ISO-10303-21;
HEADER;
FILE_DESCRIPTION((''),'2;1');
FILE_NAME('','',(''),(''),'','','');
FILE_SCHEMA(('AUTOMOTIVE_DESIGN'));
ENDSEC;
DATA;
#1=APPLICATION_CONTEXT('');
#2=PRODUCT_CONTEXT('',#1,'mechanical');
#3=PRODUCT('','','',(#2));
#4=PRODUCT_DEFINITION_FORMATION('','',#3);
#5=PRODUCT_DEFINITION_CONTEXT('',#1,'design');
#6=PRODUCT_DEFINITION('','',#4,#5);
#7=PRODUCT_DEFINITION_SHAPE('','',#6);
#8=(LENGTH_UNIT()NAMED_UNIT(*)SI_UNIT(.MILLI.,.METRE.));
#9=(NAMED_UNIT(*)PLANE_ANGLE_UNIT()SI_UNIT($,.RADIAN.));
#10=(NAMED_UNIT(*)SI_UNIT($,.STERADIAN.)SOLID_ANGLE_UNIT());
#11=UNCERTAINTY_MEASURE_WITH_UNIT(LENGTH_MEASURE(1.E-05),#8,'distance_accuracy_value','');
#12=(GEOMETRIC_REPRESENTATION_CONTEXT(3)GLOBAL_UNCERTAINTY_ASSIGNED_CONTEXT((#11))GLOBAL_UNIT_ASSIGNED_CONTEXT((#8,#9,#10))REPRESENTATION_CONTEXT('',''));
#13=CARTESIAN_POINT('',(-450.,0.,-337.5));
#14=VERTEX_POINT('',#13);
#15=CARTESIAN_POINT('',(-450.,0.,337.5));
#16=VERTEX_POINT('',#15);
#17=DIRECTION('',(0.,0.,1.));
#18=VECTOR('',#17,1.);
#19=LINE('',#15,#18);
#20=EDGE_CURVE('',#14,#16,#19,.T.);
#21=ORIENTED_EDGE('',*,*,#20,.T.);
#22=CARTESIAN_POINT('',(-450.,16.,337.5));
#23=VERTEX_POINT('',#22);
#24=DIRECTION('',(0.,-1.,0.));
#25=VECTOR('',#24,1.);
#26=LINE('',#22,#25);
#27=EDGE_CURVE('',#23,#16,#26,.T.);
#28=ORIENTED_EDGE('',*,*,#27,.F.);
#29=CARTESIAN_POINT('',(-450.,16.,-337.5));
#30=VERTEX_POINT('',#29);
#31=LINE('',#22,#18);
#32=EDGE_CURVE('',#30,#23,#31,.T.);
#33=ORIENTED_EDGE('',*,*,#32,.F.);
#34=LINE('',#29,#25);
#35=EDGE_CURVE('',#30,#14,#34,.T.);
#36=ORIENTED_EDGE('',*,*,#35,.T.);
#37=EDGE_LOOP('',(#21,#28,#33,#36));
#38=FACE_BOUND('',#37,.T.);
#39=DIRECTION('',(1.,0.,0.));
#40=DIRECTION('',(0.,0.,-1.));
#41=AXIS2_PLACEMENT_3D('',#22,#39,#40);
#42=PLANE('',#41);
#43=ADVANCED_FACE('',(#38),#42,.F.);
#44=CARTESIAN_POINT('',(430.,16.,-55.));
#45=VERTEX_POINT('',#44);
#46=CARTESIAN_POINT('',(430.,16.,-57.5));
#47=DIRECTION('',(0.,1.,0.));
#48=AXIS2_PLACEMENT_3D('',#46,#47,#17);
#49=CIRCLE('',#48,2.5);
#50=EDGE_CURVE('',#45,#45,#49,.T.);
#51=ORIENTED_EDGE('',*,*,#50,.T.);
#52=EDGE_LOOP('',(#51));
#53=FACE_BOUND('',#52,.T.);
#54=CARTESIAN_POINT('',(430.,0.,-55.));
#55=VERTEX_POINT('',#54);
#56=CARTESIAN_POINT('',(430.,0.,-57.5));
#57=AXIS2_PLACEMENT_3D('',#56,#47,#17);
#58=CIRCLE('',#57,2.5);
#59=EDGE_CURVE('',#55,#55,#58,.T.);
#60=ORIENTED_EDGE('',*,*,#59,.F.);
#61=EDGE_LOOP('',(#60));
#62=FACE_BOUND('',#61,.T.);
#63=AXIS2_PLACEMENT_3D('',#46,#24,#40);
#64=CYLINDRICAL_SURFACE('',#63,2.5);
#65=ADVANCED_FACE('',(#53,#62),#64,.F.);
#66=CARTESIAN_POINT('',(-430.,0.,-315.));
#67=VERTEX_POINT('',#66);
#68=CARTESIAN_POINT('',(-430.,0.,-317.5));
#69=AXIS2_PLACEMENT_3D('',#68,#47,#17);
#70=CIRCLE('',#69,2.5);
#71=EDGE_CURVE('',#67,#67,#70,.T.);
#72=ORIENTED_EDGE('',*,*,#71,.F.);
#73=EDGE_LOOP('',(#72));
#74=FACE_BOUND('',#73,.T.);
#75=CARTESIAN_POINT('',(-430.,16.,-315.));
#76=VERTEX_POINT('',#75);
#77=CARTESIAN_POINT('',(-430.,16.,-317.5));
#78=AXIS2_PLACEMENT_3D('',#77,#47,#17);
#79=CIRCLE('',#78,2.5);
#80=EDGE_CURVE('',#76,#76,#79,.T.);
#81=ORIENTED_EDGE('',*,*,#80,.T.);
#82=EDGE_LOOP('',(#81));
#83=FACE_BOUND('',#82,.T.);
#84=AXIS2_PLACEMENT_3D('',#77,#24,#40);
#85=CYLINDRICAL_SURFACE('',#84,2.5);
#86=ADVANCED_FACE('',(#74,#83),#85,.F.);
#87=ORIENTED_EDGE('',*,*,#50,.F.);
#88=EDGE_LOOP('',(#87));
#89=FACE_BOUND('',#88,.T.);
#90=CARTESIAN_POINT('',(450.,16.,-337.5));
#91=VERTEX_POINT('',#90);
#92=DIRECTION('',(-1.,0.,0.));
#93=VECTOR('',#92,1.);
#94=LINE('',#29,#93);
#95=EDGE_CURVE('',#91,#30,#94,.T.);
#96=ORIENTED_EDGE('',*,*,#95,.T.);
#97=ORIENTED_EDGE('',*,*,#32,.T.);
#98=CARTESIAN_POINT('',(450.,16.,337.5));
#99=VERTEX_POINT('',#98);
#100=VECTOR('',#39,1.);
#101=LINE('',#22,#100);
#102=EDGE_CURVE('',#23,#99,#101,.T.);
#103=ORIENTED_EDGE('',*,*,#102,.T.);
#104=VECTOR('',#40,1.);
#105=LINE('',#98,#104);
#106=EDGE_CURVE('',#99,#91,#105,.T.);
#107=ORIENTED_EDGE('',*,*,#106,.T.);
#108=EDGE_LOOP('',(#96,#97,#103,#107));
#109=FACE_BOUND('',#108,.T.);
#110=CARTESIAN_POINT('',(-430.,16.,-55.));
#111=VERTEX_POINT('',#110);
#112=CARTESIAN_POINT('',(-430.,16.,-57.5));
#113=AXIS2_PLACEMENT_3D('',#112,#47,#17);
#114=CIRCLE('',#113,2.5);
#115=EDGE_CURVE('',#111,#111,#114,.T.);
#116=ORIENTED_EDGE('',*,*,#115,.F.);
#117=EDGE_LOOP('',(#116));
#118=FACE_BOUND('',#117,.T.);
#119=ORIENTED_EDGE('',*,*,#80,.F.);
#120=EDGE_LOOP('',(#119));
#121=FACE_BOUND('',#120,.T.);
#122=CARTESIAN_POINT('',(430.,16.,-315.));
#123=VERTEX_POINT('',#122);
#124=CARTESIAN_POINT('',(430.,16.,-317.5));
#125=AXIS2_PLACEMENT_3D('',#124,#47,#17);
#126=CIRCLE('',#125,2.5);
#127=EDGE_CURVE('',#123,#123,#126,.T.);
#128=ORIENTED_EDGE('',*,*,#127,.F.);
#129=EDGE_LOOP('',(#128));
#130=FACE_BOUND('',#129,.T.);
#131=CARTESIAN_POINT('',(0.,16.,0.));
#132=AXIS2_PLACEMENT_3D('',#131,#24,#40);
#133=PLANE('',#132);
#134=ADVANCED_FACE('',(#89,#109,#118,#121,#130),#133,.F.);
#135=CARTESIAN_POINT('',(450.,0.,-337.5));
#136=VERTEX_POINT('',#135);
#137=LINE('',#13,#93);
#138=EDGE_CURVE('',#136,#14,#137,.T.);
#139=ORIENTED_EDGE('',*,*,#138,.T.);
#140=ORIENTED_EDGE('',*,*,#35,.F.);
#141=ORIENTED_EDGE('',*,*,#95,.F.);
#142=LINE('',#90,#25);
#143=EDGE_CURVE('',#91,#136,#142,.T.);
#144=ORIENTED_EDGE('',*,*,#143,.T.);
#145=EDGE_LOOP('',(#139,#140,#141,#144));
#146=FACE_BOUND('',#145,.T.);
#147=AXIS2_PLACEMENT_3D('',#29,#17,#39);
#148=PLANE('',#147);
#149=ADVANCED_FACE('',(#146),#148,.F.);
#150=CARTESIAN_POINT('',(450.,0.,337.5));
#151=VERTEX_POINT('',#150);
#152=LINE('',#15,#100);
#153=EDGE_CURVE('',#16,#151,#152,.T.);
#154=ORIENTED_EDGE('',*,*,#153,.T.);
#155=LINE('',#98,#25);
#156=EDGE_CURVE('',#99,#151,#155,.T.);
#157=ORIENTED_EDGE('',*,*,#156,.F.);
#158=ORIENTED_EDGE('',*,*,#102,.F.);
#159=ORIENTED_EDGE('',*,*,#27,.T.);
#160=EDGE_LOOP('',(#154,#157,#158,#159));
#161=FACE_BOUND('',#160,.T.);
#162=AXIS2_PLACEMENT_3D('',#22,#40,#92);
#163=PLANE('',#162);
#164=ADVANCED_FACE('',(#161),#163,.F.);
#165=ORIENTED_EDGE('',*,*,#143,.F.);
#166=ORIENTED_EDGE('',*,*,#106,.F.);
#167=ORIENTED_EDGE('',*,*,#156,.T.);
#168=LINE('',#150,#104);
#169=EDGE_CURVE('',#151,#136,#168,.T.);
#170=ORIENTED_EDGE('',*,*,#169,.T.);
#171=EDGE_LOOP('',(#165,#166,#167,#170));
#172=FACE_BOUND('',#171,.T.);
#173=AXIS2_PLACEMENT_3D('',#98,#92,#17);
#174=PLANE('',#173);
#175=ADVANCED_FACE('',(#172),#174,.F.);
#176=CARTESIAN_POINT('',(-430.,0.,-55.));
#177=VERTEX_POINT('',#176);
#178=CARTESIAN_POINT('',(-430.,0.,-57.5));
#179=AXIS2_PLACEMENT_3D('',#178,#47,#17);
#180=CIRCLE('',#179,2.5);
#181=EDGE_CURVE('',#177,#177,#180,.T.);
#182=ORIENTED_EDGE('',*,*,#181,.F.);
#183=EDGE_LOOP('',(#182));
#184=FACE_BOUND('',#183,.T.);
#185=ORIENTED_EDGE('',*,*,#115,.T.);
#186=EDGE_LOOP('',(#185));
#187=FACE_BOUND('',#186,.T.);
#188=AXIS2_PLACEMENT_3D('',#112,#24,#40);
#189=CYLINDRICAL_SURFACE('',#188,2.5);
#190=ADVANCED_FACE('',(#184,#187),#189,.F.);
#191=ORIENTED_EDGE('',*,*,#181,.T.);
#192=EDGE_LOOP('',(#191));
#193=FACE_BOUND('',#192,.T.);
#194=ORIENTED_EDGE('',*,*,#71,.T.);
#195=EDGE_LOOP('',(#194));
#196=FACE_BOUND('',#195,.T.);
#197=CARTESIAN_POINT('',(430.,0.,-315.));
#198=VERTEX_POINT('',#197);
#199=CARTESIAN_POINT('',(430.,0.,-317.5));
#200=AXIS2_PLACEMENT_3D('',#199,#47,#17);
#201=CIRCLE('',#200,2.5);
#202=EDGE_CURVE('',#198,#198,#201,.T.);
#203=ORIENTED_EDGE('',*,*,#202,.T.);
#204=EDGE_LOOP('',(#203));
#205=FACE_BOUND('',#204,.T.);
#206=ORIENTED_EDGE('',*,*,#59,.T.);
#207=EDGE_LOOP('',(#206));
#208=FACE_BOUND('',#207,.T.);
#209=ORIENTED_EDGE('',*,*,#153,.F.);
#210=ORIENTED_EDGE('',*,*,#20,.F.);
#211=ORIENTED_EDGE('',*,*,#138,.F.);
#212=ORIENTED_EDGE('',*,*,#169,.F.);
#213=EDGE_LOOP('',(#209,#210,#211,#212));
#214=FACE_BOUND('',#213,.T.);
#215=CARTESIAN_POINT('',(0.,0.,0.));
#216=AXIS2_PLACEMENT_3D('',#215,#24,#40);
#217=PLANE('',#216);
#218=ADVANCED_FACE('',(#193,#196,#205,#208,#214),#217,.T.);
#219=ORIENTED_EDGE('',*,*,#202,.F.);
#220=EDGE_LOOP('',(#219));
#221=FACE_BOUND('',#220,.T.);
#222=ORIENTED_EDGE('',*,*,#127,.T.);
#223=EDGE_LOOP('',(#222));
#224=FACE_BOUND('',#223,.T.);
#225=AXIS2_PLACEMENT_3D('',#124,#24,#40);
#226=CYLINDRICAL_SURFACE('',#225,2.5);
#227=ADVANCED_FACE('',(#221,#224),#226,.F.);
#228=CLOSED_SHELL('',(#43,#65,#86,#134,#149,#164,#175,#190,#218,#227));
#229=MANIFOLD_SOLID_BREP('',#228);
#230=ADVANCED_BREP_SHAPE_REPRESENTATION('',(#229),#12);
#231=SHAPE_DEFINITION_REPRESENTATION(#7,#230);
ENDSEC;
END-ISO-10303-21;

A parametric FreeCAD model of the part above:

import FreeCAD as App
import Part
import Sketcher

V = App.Vector

doc = App.newDocument("Part")
body = doc.addObject("PartDesign::Body", "Body")

sketch1 = body.newObject("Sketcher::SketchObject", "Sketch")
sketch1.AttachmentSupport = (doc.getObject("XZ_Plane"), [""])
sketch1.MapMode = "FlatFace"
sketch1.addGeometry(Part.LineSegment(V(-450, -337.5, 0), V(-450, 337.5, 0)), False)
sketch1.addGeometry(Part.LineSegment(V(-450, 337.5, 0), V(450, 337.5, 0)), False)
sketch1.addGeometry(Part.LineSegment(V(450, 337.5, 0), V(450, -337.5, 0)), False)
sketch1.addGeometry(Part.LineSegment(V(450, -337.5, 0), V(-450, -337.5, 0)), False)
sketch1.addGeometry(Part.Circle(V(-430, -57.5, 0), V(0, 0, 1), 2.5), False)
sketch1.addGeometry(Part.Circle(V(430, -57.5, 0), V(0, 0, 1), 2.5), False)
sketch1.addGeometry(Part.Circle(V(-430, -317.5, 0), V(0, 0, 1), 2.5), False)
sketch1.addGeometry(Part.Circle(V(430, -317.5, 0), V(0, 0, 1), 2.5), False)
sketch1.addConstraint(Sketcher.Constraint("Coincident", 0, 2, 1, 1))
sketch1.addConstraint(Sketcher.Constraint("Coincident", 1, 2, 2, 1))
sketch1.addConstraint(Sketcher.Constraint("Coincident", 2, 2, 3, 1))
sketch1.addConstraint(Sketcher.Constraint("Coincident", 3, 2, 0, 1))
sketch1.addConstraint(Sketcher.Constraint("Vertical", 0))
sketch1.addConstraint(Sketcher.Constraint("Horizontal", 1))
sketch1.addConstraint(Sketcher.Constraint("Vertical", 2))
sketch1.addConstraint(Sketcher.Constraint("Horizontal", 3))
sketch1.addConstraint(Sketcher.Constraint("Equal", 4, 5))
sketch1.addConstraint(Sketcher.Constraint("Equal", 5, 6))
sketch1.addConstraint(Sketcher.Constraint("Equal", 6, 7))
sketch1.addConstraint(Sketcher.Constraint("Symmetric", 0, 2, 2, 2, -1, 1))
sketch1.addConstraint(Sketcher.Constraint("Symmetric", 4, 3, 5, 3, -2))
sketch1.addConstraint(Sketcher.Constraint("Symmetric", 6, 3, 7, 3, -2))
sketch1.addConstraint(Sketcher.Constraint("Vertical", 4, 3, 6, 3))
sketch1.addConstraint(Sketcher.Constraint("Diameter", 4, 5.0))
sketch1.addConstraint(Sketcher.Constraint("DistanceX", 1, 1, 1, 2, 900.0))
sketch1.addConstraint(Sketcher.Constraint("DistanceY", 0, 1, 0, 2, 675.0))
sketch1.addConstraint(Sketcher.Constraint("DistanceX", 4, 3, -1, 1, 430.0))
sketch1.addConstraint(Sketcher.Constraint("DistanceY", 6, 3, 4, 3, 260.0))
sketch1.addConstraint(Sketcher.Constraint("DistanceY", 4, 3, 0, 2, 395.0))
pad1 = body.newObject("PartDesign::Pad", "Pad")
pad1.Profile = sketch1
pad1.Length = 16
pad1.Reversed = True

doc.recompute()
